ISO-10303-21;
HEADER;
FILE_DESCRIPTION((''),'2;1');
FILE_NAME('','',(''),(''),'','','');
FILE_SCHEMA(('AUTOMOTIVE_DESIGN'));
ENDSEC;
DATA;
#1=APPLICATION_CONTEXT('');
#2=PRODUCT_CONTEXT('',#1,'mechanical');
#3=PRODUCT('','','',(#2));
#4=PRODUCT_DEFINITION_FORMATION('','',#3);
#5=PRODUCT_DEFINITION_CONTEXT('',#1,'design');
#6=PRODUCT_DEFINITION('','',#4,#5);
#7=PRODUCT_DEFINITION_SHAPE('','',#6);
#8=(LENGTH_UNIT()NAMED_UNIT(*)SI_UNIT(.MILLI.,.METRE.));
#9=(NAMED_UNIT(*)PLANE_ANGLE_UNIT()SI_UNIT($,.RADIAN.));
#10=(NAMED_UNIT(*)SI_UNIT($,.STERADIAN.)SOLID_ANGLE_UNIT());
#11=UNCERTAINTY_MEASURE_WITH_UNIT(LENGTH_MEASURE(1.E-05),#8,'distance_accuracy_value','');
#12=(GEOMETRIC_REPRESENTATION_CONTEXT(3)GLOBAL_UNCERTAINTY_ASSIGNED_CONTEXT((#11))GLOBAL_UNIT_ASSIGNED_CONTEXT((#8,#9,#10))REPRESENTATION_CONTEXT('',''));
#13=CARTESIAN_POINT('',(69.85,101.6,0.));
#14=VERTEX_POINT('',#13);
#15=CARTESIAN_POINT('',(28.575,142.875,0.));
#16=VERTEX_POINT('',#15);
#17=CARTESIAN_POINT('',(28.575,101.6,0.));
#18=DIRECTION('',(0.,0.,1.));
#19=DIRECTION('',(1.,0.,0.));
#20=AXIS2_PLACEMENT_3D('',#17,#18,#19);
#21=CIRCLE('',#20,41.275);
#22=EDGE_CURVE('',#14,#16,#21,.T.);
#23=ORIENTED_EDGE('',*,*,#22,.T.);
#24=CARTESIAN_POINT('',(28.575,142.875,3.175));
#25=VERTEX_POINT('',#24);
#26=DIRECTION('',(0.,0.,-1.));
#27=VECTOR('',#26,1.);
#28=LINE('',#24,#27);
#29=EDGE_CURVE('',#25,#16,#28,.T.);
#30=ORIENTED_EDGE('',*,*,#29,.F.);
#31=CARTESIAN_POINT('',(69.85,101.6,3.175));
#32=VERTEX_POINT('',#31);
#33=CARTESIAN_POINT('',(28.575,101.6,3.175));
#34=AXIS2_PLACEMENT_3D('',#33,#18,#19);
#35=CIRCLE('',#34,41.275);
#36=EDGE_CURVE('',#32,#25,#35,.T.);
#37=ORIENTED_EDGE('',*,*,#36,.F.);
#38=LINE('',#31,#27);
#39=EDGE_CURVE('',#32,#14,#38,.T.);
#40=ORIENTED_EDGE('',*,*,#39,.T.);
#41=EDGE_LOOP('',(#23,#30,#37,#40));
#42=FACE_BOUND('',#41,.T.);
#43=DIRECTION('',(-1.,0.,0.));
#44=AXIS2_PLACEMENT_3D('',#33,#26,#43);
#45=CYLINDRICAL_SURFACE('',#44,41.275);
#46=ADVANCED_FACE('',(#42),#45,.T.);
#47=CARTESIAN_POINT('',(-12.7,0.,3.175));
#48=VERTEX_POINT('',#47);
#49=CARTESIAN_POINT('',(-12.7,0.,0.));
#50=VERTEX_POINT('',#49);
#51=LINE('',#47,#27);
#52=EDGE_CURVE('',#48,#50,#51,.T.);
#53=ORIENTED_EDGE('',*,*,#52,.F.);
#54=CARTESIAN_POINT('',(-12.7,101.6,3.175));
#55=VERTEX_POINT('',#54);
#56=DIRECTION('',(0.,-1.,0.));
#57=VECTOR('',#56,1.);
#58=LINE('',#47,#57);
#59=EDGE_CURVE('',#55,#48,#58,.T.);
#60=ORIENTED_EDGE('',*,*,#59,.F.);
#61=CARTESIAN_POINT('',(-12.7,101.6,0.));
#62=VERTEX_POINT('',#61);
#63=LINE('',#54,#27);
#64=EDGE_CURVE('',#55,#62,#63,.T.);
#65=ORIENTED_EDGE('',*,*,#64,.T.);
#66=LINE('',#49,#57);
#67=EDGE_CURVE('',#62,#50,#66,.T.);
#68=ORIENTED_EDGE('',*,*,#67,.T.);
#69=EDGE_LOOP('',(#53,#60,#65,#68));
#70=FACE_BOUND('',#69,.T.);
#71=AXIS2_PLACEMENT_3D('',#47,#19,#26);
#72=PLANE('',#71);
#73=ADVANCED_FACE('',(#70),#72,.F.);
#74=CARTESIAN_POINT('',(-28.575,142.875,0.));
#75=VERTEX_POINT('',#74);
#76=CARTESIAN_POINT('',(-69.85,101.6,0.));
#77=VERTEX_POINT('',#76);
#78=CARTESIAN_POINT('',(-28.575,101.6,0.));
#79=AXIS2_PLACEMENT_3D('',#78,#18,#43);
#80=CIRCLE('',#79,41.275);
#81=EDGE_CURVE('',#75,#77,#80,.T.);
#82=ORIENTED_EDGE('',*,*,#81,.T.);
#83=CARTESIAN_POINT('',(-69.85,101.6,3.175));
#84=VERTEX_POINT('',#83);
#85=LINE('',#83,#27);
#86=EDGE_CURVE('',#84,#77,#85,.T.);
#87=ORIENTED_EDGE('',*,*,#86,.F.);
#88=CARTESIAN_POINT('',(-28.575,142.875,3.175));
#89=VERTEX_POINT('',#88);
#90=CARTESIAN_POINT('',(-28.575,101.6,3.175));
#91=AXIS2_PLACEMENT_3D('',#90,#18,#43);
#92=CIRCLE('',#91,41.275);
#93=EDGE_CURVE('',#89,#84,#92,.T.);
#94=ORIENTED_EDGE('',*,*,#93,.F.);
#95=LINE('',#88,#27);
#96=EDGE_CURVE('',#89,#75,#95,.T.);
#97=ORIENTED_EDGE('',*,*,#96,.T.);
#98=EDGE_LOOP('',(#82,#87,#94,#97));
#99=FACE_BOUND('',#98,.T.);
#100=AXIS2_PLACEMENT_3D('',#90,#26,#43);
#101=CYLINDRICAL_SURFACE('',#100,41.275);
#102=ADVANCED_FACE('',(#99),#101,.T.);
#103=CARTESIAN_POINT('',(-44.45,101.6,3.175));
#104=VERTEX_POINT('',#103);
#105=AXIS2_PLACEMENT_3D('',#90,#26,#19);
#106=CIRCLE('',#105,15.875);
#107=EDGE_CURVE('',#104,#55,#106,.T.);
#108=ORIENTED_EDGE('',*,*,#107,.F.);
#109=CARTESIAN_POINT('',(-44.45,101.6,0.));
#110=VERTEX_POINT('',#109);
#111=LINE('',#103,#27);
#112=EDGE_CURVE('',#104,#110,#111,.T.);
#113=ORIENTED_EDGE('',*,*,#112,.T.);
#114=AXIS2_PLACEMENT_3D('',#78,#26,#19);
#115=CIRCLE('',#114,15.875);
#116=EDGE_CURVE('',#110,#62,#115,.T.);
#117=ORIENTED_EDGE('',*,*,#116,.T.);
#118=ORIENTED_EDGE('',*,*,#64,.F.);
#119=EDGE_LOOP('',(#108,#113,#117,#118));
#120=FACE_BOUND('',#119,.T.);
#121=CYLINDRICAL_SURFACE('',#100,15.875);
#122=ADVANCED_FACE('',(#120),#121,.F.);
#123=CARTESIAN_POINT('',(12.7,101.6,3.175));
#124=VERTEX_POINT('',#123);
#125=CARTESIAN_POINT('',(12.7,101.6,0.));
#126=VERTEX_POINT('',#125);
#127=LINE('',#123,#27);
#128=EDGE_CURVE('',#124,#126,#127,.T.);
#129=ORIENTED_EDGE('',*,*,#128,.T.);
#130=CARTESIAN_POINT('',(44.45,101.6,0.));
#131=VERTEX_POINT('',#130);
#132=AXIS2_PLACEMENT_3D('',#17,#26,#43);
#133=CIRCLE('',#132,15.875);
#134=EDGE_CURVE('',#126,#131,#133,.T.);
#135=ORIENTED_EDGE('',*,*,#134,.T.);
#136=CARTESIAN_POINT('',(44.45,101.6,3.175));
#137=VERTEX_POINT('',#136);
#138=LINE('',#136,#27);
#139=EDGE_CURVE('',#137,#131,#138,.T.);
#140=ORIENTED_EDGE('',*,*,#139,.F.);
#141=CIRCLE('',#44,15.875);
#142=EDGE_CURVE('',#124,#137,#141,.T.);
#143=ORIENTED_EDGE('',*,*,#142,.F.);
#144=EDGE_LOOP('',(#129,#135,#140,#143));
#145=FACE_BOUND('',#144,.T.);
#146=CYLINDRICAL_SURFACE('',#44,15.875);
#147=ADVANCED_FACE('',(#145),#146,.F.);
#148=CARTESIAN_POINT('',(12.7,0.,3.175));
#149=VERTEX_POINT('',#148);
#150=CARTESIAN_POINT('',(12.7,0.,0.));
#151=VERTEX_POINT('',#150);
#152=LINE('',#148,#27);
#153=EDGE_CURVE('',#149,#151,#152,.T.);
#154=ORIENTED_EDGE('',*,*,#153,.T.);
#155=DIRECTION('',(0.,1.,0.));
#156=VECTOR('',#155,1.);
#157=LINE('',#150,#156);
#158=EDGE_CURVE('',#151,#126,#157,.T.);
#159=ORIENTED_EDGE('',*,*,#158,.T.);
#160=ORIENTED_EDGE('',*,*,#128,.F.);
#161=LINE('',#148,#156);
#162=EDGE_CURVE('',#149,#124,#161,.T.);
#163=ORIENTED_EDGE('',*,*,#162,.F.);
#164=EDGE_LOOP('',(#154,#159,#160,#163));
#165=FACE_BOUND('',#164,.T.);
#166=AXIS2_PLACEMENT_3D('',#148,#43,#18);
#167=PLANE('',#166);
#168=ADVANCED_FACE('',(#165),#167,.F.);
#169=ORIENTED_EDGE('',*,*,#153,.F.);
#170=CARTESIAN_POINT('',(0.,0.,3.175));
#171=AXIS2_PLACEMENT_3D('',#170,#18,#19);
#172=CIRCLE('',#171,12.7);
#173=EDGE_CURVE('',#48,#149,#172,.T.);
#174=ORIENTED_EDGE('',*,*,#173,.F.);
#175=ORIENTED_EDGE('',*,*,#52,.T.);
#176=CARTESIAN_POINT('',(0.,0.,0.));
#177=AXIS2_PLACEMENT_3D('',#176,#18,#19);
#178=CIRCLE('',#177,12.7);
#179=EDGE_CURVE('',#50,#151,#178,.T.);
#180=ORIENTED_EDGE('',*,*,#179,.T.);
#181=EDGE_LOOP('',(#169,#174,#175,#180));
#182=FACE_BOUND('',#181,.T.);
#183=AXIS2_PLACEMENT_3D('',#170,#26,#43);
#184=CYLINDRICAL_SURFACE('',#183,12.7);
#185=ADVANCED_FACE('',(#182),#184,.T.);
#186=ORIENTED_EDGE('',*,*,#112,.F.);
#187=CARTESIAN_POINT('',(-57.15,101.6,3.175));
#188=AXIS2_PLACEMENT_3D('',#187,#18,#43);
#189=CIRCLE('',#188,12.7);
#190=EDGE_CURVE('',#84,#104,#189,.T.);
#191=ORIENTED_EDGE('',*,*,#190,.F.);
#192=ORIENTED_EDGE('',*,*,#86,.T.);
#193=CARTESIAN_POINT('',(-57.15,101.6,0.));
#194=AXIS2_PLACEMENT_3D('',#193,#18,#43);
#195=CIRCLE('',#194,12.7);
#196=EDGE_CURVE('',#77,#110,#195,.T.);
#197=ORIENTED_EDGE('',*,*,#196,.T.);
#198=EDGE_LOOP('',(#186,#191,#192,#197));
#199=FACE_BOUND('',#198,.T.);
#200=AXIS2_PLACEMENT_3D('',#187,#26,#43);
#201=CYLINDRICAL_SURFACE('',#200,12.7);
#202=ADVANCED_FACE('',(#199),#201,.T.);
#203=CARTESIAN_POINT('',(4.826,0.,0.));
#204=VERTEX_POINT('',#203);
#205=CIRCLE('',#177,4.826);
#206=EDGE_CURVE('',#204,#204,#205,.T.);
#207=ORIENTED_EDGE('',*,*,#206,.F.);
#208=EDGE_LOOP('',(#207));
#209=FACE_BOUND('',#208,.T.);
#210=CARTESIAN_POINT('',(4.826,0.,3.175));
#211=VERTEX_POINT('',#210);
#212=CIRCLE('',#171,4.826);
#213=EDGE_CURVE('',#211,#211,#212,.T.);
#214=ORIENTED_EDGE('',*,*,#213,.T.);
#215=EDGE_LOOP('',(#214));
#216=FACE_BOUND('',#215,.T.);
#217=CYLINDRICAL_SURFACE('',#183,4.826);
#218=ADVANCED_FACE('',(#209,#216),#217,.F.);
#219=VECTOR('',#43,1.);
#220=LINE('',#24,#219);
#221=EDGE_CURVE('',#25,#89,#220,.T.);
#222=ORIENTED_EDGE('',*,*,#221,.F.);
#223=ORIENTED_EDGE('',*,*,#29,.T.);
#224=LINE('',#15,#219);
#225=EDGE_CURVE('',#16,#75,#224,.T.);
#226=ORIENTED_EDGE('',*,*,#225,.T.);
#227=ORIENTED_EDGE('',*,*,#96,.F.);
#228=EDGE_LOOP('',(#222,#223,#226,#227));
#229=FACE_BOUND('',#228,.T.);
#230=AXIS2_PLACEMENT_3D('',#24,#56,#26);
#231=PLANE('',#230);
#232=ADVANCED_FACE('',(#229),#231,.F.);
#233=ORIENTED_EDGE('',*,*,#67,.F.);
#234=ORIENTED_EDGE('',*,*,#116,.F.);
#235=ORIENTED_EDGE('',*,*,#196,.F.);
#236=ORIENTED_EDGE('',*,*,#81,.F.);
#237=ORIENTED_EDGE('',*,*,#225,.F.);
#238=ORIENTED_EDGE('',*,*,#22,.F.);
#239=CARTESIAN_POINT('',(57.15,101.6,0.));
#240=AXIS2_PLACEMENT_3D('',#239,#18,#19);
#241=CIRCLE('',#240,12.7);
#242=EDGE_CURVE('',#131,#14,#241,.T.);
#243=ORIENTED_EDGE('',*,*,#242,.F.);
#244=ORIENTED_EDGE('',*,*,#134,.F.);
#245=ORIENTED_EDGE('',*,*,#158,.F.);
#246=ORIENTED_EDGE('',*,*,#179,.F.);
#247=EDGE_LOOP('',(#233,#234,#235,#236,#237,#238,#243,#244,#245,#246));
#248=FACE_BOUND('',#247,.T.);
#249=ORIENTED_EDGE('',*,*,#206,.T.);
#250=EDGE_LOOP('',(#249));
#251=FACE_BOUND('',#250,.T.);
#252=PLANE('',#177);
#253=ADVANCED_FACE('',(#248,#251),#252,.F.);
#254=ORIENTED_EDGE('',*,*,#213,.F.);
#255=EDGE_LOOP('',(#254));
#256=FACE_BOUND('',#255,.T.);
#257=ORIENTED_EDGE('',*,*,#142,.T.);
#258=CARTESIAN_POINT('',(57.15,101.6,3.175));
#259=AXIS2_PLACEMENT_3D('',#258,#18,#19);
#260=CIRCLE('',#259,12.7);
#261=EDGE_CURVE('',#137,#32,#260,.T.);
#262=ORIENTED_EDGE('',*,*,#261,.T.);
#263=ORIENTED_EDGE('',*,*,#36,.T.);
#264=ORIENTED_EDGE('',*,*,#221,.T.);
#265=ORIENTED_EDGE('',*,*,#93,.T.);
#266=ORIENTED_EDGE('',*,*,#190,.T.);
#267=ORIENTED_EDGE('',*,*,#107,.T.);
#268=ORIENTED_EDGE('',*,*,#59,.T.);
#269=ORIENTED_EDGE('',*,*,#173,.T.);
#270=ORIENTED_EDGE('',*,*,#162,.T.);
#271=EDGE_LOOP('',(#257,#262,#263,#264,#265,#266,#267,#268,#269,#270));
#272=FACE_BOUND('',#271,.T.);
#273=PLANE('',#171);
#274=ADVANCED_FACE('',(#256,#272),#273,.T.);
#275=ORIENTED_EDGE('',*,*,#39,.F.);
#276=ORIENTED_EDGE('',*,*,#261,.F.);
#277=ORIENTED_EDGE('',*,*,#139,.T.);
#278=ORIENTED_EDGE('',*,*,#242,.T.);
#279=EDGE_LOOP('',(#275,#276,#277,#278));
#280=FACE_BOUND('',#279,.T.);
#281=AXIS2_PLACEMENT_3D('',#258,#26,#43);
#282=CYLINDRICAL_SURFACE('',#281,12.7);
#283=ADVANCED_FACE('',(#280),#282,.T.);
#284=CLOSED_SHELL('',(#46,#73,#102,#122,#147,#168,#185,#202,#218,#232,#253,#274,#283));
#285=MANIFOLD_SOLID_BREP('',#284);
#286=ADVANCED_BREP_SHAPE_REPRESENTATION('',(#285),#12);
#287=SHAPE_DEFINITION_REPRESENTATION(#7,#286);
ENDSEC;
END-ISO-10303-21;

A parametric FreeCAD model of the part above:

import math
import FreeCAD as App
import Part
import Sketcher

V = App.Vector
Q = App.Units.Quantity

doc = App.newDocument("Part")
body = doc.addObject("PartDesign::Body", "Body")

# Sketch on XY plane
sketch1 = body.newObject("Sketcher::SketchObject", "Sketch")
sketch1.AttachmentSupport = (doc.getObject("XY_Plane"), [""])
sketch1.MapMode = "FlatFace"
sketch1.addGeometry(Part.LineSegment(V(12.7, 0, 0), V(12.7, 101.6, 0)), False)
sketch1.addGeometry(Part.ArcOfCircle(Part.Circle(V(28.575, 101.6, 0), V(0, 0, 1), 15.875), math.radians(0), math.radians(180)), False)
sketch1.addGeometry(Part.ArcOfCircle(Part.Circle(V(57.15, 101.6, 0), V(0, 0, 1), 12.7), math.radians(180), math.radians(360)), False)
sketch1.addGeometry(Part.ArcOfCircle(Part.Circle(V(28.575, 101.6, 0), V(0, 0, 1), 41.275), math.radians(0), math.radians(90)), False)
sketch1.addGeometry(Part.LineSegment(V(28.575, 142.875, 0), V(-28.575, 142.875, 0)), False)
sketch1.addGeometry(Part.ArcOfCircle(Part.Circle(V(-28.575, 101.6, 0), V(0, 0, 1), 41.275), math.radians(90), math.radians(180)), False)
sketch1.addGeometry(Part.ArcOfCircle(Part.Circle(V(-57.15, 101.6, 0), V(0, 0, 1), 12.7), math.radians(180), math.radians(360)), False)
sketch1.addGeometry(Part.ArcOfCircle(Part.Circle(V(-28.575, 101.6, 0), V(0, 0, 1), 15.875), math.radians(0), math.radians(180)), False)
sketch1.addGeometry(Part.LineSegment(V(-12.7, 101.6, 0), V(-12.7, 0, 0)), False)
sketch1.addGeometry(Part.ArcOfCircle(Part.Circle(V(0, 0, 0), V(0, 0, 1), 12.7), math.radians(180), math.radians(360)), False)
sketch1.addGeometry(Part.Circle(V(0, 0, 0), V(0, 0, 1), 4.826), False)
sketch1.addConstraint(Sketcher.Constraint("Tangent", 0, 2, 1, 2))
sketch1.addConstraint(Sketcher.Constraint("Tangent", 1, 1, 2, 1))
sketch1.addConstraint(Sketcher.Constraint("Tangent", 2, 2, 3, 1))
sketch1.addConstraint(Sketcher.Constraint("Tangent", 3, 2, 4, 1))
sketch1.addConstraint(Sketcher.Constraint("Tangent", 4, 2, 5, 1))
sketch1.addConstraint(Sketcher.Constraint("Tangent", 5, 2, 6, 1))
sketch1.addConstraint(Sketcher.Constraint("Tangent", 6, 2, 7, 2))
sketch1.addConstraint(Sketcher.Constraint("Tangent", 7, 1, 8, 1))
sketch1.addConstraint(Sketcher.Constraint("Tangent", 8, 2, 9, 1))
sketch1.addConstraint(Sketcher.Constraint("Tangent", 9, 2, 0, 1))
sketch1.addConstraint(Sketcher.Constraint("Vertical", 0))
sketch1.addConstraint(Sketcher.Constraint("Horizontal", 4))
sketch1.addConstraint(Sketcher.Constraint("Vertical", 8))
sketch1.addConstraint(Sketcher.Constraint("Coincident", 9, 3, -1, 1))
sketch1.addConstraint(Sketcher.Constraint("Coincident", 10, 3, -1, 1))
sketch1.addConstraint(Sketcher.Constraint("Coincident", 3, 3, 1, 3))
sketch1.addConstraint(Sketcher.Constraint("Coincident", 7, 3, 5, 3))
sketch1.addConstraint(Sketcher.Constraint("Equal", 3, 5))
sketch1.addConstraint(Sketcher.Constraint("Equal", 2, 6))
sketch1.addConstraint(Sketcher.Constraint("Equal", 6, 9))
sketch1.addConstraint(Sketcher.Constraint("Horizontal", 1, 3, 2, 3))
sketch1.addConstraint(Sketcher.Constraint("Horizontal", 5, 3, 6, 3))
sketch1.addConstraint(Sketcher.Constraint("Radius", 2, Q("0.5 in")))
sketch1.addConstraint(Sketcher.Constraint("Diameter", 10, Q("0.38 in")))
sketch1.addConstraint(Sketcher.Constraint("DistanceY", 0, 1, 0, 2, Q("4 in")))
sketch1.addConstraint(Sketcher.Constraint("Radius", 1, Q("0.625 in")))
pad1 = body.newObject("PartDesign::Pad", "Pad")
pad1.Profile = sketch1
pad1.Length = Q("0.125 in")

doc.recompute()
